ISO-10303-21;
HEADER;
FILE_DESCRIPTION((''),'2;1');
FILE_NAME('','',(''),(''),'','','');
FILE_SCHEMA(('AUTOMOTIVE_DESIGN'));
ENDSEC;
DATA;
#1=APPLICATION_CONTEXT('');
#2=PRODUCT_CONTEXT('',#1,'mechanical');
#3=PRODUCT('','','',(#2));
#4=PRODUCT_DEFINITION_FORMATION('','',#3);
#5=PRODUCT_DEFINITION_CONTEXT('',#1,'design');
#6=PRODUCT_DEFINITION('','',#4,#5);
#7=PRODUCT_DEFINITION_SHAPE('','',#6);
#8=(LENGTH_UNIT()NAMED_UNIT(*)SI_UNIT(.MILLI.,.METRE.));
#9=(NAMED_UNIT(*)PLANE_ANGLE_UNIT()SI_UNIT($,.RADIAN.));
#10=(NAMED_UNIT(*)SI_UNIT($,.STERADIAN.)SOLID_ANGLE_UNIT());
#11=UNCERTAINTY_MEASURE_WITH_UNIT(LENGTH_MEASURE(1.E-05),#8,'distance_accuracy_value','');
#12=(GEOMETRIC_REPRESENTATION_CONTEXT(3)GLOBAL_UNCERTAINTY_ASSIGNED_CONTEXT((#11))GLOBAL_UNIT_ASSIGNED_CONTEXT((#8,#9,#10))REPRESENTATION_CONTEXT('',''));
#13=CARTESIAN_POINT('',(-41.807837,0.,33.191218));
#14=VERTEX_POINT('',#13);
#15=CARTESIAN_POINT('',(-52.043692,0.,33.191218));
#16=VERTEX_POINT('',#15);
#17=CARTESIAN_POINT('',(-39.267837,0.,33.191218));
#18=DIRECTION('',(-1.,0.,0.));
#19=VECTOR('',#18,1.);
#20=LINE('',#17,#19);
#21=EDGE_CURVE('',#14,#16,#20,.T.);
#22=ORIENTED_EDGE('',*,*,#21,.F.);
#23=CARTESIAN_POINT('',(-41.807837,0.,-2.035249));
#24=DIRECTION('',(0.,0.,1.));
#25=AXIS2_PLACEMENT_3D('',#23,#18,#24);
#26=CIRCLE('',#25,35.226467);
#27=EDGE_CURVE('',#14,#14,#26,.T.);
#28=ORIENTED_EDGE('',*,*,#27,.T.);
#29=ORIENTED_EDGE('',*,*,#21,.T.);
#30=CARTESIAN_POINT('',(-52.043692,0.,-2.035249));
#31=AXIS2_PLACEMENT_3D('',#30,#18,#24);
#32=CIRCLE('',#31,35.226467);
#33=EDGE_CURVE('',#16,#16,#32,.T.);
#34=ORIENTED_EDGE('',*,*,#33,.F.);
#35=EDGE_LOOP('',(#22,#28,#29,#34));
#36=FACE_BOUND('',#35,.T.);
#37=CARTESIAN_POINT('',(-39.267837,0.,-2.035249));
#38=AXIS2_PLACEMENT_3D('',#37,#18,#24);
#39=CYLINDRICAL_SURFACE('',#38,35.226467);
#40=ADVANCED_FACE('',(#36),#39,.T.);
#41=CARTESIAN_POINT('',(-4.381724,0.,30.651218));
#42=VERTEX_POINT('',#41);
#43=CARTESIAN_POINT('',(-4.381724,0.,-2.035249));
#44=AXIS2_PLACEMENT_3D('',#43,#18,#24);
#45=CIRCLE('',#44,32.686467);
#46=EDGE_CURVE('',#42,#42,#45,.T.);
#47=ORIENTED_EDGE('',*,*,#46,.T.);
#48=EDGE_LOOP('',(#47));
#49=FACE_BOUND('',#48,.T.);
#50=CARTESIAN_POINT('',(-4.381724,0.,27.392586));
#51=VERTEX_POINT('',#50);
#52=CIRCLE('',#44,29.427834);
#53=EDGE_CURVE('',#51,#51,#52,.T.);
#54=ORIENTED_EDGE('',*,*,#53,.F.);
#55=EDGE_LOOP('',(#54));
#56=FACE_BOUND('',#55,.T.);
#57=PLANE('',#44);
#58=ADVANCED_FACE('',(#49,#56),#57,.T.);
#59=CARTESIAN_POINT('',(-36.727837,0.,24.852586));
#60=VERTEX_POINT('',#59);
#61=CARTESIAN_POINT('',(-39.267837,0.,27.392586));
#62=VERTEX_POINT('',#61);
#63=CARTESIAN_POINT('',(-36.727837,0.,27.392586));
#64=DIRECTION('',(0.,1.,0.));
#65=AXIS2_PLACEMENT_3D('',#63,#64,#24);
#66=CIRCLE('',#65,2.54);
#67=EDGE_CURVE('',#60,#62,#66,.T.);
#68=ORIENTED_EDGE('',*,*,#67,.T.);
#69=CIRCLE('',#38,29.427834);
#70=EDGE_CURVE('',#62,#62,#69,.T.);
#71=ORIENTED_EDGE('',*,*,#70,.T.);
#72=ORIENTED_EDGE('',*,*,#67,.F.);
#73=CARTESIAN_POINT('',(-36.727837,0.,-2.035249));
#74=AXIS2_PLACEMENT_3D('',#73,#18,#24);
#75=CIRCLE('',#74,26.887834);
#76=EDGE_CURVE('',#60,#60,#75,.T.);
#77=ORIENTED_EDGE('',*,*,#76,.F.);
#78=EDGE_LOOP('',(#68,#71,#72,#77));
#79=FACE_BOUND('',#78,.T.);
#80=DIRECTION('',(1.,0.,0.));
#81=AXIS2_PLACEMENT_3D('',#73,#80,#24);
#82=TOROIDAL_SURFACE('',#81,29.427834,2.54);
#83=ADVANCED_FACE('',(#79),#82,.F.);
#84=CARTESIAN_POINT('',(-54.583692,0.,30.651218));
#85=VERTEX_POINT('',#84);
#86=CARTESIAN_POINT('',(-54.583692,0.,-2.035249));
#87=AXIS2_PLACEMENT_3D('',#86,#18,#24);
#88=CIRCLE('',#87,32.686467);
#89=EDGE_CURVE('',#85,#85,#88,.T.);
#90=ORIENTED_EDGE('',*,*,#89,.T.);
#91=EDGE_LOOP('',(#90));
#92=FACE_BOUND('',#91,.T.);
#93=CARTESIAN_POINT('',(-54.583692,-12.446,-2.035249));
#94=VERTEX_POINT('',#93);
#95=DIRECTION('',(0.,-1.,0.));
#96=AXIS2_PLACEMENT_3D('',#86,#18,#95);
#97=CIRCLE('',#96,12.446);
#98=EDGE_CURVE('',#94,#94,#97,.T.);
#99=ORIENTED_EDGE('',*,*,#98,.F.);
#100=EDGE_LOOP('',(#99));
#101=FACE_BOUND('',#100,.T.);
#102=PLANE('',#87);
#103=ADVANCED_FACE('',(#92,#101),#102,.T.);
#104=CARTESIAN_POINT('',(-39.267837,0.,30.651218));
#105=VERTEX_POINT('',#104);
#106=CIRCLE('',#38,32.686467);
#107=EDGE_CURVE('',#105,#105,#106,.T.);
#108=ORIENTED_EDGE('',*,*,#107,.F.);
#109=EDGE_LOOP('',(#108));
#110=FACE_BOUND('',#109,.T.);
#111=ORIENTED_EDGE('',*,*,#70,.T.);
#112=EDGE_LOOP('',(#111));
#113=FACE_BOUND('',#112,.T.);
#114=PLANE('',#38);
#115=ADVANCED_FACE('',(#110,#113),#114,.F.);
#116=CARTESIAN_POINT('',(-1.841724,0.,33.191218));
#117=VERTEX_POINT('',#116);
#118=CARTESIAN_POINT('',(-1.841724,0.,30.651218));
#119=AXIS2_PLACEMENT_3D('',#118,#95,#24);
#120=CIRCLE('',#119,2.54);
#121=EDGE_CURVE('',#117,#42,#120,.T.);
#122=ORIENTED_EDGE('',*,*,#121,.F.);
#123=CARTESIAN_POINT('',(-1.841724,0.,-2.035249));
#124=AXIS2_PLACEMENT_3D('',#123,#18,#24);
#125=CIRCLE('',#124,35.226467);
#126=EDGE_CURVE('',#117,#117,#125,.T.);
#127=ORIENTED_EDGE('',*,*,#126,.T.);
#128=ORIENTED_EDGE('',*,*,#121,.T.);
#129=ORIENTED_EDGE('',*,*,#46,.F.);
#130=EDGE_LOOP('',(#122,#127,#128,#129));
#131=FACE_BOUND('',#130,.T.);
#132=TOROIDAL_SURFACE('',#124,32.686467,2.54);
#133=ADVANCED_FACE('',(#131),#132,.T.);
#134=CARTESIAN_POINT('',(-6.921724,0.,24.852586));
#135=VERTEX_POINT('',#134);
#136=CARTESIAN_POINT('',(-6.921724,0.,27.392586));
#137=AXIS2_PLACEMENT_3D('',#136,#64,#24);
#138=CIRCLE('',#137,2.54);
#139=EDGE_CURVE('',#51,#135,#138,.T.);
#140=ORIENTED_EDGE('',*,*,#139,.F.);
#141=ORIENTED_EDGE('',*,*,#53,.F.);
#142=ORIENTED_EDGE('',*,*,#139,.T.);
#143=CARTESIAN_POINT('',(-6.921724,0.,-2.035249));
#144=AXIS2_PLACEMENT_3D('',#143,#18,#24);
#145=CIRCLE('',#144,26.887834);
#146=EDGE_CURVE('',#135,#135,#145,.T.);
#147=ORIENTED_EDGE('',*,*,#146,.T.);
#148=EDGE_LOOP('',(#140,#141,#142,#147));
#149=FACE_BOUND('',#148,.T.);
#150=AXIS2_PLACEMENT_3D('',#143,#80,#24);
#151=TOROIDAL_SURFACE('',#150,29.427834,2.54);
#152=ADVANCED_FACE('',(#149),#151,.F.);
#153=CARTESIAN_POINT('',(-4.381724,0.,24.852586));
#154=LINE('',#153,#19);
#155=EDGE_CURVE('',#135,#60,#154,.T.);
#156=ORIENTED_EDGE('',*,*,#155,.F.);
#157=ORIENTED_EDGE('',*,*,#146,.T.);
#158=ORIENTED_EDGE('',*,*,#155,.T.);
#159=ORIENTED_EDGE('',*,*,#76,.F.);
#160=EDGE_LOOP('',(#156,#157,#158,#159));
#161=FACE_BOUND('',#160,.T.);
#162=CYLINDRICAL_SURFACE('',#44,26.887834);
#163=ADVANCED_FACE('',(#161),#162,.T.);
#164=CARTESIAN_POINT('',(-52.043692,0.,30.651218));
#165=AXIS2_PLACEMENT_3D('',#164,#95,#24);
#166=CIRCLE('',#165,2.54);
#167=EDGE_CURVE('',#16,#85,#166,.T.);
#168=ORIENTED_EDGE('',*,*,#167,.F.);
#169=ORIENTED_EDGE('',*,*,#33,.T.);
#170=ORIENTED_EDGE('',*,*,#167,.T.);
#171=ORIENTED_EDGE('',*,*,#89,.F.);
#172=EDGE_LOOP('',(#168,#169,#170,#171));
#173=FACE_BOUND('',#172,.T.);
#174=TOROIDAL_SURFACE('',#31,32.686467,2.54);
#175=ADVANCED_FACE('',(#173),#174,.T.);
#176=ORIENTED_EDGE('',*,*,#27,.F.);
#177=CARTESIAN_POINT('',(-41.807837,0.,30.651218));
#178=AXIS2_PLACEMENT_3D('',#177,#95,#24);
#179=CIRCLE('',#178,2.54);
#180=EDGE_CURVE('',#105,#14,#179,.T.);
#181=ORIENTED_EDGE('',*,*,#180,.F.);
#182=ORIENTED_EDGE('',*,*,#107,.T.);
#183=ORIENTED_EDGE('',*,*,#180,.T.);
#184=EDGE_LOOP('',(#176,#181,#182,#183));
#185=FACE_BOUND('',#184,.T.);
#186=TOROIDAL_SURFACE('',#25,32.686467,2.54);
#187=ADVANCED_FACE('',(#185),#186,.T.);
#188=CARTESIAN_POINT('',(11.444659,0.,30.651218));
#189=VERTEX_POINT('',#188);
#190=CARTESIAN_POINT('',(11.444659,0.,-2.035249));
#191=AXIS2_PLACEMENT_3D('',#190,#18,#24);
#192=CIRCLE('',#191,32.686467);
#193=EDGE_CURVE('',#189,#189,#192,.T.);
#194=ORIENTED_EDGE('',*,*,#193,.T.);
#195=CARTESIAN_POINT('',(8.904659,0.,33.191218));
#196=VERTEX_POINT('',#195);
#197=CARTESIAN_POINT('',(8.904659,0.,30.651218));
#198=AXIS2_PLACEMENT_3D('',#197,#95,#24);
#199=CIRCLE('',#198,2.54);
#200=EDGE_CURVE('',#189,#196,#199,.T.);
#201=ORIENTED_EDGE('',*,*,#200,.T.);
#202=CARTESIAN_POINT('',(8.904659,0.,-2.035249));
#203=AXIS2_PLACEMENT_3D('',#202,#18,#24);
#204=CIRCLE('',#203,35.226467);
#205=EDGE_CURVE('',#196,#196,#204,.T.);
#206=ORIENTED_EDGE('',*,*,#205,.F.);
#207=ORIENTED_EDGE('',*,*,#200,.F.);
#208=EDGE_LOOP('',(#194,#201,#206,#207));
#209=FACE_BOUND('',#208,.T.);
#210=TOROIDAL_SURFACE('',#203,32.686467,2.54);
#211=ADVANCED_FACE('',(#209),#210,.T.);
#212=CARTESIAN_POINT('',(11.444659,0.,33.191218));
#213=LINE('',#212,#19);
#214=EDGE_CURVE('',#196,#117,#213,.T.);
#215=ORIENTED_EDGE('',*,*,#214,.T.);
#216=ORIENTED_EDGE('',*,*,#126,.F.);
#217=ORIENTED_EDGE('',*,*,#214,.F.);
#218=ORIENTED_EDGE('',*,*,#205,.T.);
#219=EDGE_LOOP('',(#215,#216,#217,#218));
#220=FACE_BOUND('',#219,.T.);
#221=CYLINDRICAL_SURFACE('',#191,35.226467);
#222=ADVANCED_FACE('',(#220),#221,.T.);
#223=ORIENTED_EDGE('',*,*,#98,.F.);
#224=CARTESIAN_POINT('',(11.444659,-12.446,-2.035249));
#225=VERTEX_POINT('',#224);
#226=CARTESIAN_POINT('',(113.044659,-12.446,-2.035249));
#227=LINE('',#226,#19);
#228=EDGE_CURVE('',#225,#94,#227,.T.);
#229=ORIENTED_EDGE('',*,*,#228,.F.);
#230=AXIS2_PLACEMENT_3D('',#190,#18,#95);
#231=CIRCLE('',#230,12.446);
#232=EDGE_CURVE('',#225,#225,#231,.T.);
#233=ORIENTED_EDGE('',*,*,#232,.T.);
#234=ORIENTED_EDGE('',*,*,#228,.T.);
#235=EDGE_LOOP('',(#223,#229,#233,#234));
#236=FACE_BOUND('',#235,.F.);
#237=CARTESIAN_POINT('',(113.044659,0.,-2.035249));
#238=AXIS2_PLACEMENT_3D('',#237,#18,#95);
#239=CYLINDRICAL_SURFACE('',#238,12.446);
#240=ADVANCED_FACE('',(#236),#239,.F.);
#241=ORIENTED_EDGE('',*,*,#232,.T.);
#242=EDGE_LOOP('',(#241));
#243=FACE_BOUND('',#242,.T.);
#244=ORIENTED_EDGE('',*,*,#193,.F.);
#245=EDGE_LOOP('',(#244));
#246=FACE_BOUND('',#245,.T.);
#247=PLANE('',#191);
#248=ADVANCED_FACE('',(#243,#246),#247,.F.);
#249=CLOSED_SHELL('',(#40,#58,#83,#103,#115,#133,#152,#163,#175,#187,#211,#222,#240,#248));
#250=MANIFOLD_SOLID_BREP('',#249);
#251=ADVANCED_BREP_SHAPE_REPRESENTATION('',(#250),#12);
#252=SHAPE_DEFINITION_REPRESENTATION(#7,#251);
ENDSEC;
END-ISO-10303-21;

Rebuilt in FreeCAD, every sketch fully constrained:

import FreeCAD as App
import Part
import Sketcher
from FreeCAD import Vector
Q = App.Units.Quantity


def edges_at(feature, points):
    """Names of the edges that pass closest to the given points."""
    edges = feature.Shape.Edges
    near = lambda p: min(range(len(edges)), key=lambda i: edges[i].distToShape(Part.Vertex(*p))[0])
    return sorted({f"Edge{near(p) + 1}" for p in points})


def add_polygon(sketch, points):
    """Adds a closed chain of lines whose ends are joined by coincident constraints."""
    first, n = sketch.GeometryCount, len(points)
    for a, b in zip(points, points[1:] + points[:1]):
        sketch.addGeometry(Part.LineSegment(App.Vector(*a, 0), App.Vector(*b, 0)), False)
    for i in range(n):
        sketch.addConstraint(Sketcher.Constraint("Coincident", first + i, 2, first + (i + 1) % n, 1))

doc = App.newDocument("Part")
body = doc.addObject("PartDesign::Body", "Body")

# Sketch on XZ plane
sketch1 = body.newObject("Sketcher::SketchObject", "Sketch")
sketch1.AttachmentSupport = (doc.getObject("XZ_Plane"), [""])
sketch1.MapMode = "FlatFace"
add_polygon(sketch1, [(-39, 33), (-55, 33), (-55, -2), (-39, -2), (-39, 6), (-4, 6), (-4, -2), (11, -2), (11, 33), (-4, 33), (-4, 25), (-39, 25)])  # lines 0-11
sketch1.addGeometry(Part.LineSegment(Vector(11, -2, 0), Vector(-55, -2, 0)), True)  # axis
sketch1.addConstraint(Sketcher.Constraint("Horizontal", 0))
sketch1.addConstraint(Sketcher.Constraint("Vertical", 1))
sketch1.addConstraint(Sketcher.Constraint("Horizontal", 2))
sketch1.addConstraint(Sketcher.Constraint("Vertical", 3))
sketch1.addConstraint(Sketcher.Constraint("Horizontal", 4))
sketch1.addConstraint(Sketcher.Constraint("Vertical", 5))
sketch1.addConstraint(Sketcher.Constraint("Horizontal", 6))
sketch1.addConstraint(Sketcher.Constraint("Vertical", 7))
sketch1.addConstraint(Sketcher.Constraint("Horizontal", 8))
sketch1.addConstraint(Sketcher.Constraint("Vertical", 9))
sketch1.addConstraint(Sketcher.Constraint("Horizontal", 10))
sketch1.addConstraint(Sketcher.Constraint("Vertical", 11))
sketch1.addConstraint(Sketcher.Constraint("Horizontal", 12))
sketch1.addConstraint(Sketcher.Constraint("Coincident", 12, 1, 6, 2))
sketch1.addConstraint(Sketcher.Constraint("Coincident", 12, 2, 1, 2))
sketch1.addConstraint(Sketcher.Constraint("Horizontal", 0, 2, 7, 2))
sketch1.addConstraint(Sketcher.Constraint("Vertical", 5, 2, 8, 2))
sketch1.addConstraint(Sketcher.Constraint("Vertical", 3, 2, 10, 2))
sketch1.addConstraint(Sketcher.Constraint("Equal", 5, 9))
sketch1.addConstraint(Sketcher.Constraint("DistanceX", 12, 2, 12, 1, Q("66.028351 mm")))
sketch1.addConstraint(Sketcher.Constraint("DistanceX", 0, 2, 0, 1, Q("15.315855 mm")))
sketch1.addConstraint(Sketcher.Constraint("DistanceX", 4, 1, 4, 2, Q("34.886113 mm")))
sketch1.addConstraint(Sketcher.Constraint("DistanceY", 1, 2, 1, 1, Q("35.226467 mm")))
sketch1.addConstraint(Sketcher.Constraint("DistanceY", 3, 1, 3, 2, Q("8.338632 mm")))
sketch1.addConstraint(Sketcher.Constraint("DistanceY", 1, 2, -1, 1, Q("2.035249 mm")))
sketch1.addConstraint(Sketcher.Constraint("DistanceX", -1, 1, 6, 2, Q("11.444659 mm")))
revolution = body.newObject("PartDesign::Revolution", "Revolution")
revolution.Profile = sketch1
revolution.ReferenceAxis = (sketch1, ["Axis0"])
revolution.Angle = 360
doc.recompute()

fillet = body.newObject("PartDesign::Fillet", "Fillet")
fillet.Base = (revolution, edges_at(revolution, [
    (11.445, 0, -37.262),
    (-54.584, 0, -37.262),
    (-39.268, 0, -37.262),
    (-4.382, 0, -37.262),
    (-4.382, 0, -28.923),
    (-39.268, 0, -28.923),
]))
fillet.Radius = Q("0.1 in")

# Sketch on YZ plane
sketch2 = body.newObject("Sketcher::SketchObject", "Sketch001")
sketch2.AttachmentSupport = (doc.getObject("YZ_Plane"), [""])
sketch2.MapMode = "FlatFace"
sketch2.AttachmentOffset = App.Placement(Vector(0, 0, 11.444659), App.Rotation())
sketch2.addGeometry(Part.Circle(Vector(0, -2, 0), Vector(0, 0, 1), 12), False)
sketch2.addConstraint(Sketcher.Constraint("PointOnObject", 0, 3, -2))
sketch2.addConstraint(Sketcher.Constraint("Diameter", 0, Q("0.98 in")))
sketch2.addConstraint(Sketcher.Constraint("DistanceY", 0, 3, -1, 1, Q("2.035249 mm")))
doc.recompute()
hole = body.newObject("PartDesign::Hole", "Hole")
hole.Profile = sketch2
hole.ThreadType = "None"
hole.Diameter = Q("0.98 in")
hole.DepthType = "Dimension"
hole.Depth = Q("4 in")
hole.DrillPoint = "Angled"
hole.DrillPointAngle = 118

doc.recompute()
